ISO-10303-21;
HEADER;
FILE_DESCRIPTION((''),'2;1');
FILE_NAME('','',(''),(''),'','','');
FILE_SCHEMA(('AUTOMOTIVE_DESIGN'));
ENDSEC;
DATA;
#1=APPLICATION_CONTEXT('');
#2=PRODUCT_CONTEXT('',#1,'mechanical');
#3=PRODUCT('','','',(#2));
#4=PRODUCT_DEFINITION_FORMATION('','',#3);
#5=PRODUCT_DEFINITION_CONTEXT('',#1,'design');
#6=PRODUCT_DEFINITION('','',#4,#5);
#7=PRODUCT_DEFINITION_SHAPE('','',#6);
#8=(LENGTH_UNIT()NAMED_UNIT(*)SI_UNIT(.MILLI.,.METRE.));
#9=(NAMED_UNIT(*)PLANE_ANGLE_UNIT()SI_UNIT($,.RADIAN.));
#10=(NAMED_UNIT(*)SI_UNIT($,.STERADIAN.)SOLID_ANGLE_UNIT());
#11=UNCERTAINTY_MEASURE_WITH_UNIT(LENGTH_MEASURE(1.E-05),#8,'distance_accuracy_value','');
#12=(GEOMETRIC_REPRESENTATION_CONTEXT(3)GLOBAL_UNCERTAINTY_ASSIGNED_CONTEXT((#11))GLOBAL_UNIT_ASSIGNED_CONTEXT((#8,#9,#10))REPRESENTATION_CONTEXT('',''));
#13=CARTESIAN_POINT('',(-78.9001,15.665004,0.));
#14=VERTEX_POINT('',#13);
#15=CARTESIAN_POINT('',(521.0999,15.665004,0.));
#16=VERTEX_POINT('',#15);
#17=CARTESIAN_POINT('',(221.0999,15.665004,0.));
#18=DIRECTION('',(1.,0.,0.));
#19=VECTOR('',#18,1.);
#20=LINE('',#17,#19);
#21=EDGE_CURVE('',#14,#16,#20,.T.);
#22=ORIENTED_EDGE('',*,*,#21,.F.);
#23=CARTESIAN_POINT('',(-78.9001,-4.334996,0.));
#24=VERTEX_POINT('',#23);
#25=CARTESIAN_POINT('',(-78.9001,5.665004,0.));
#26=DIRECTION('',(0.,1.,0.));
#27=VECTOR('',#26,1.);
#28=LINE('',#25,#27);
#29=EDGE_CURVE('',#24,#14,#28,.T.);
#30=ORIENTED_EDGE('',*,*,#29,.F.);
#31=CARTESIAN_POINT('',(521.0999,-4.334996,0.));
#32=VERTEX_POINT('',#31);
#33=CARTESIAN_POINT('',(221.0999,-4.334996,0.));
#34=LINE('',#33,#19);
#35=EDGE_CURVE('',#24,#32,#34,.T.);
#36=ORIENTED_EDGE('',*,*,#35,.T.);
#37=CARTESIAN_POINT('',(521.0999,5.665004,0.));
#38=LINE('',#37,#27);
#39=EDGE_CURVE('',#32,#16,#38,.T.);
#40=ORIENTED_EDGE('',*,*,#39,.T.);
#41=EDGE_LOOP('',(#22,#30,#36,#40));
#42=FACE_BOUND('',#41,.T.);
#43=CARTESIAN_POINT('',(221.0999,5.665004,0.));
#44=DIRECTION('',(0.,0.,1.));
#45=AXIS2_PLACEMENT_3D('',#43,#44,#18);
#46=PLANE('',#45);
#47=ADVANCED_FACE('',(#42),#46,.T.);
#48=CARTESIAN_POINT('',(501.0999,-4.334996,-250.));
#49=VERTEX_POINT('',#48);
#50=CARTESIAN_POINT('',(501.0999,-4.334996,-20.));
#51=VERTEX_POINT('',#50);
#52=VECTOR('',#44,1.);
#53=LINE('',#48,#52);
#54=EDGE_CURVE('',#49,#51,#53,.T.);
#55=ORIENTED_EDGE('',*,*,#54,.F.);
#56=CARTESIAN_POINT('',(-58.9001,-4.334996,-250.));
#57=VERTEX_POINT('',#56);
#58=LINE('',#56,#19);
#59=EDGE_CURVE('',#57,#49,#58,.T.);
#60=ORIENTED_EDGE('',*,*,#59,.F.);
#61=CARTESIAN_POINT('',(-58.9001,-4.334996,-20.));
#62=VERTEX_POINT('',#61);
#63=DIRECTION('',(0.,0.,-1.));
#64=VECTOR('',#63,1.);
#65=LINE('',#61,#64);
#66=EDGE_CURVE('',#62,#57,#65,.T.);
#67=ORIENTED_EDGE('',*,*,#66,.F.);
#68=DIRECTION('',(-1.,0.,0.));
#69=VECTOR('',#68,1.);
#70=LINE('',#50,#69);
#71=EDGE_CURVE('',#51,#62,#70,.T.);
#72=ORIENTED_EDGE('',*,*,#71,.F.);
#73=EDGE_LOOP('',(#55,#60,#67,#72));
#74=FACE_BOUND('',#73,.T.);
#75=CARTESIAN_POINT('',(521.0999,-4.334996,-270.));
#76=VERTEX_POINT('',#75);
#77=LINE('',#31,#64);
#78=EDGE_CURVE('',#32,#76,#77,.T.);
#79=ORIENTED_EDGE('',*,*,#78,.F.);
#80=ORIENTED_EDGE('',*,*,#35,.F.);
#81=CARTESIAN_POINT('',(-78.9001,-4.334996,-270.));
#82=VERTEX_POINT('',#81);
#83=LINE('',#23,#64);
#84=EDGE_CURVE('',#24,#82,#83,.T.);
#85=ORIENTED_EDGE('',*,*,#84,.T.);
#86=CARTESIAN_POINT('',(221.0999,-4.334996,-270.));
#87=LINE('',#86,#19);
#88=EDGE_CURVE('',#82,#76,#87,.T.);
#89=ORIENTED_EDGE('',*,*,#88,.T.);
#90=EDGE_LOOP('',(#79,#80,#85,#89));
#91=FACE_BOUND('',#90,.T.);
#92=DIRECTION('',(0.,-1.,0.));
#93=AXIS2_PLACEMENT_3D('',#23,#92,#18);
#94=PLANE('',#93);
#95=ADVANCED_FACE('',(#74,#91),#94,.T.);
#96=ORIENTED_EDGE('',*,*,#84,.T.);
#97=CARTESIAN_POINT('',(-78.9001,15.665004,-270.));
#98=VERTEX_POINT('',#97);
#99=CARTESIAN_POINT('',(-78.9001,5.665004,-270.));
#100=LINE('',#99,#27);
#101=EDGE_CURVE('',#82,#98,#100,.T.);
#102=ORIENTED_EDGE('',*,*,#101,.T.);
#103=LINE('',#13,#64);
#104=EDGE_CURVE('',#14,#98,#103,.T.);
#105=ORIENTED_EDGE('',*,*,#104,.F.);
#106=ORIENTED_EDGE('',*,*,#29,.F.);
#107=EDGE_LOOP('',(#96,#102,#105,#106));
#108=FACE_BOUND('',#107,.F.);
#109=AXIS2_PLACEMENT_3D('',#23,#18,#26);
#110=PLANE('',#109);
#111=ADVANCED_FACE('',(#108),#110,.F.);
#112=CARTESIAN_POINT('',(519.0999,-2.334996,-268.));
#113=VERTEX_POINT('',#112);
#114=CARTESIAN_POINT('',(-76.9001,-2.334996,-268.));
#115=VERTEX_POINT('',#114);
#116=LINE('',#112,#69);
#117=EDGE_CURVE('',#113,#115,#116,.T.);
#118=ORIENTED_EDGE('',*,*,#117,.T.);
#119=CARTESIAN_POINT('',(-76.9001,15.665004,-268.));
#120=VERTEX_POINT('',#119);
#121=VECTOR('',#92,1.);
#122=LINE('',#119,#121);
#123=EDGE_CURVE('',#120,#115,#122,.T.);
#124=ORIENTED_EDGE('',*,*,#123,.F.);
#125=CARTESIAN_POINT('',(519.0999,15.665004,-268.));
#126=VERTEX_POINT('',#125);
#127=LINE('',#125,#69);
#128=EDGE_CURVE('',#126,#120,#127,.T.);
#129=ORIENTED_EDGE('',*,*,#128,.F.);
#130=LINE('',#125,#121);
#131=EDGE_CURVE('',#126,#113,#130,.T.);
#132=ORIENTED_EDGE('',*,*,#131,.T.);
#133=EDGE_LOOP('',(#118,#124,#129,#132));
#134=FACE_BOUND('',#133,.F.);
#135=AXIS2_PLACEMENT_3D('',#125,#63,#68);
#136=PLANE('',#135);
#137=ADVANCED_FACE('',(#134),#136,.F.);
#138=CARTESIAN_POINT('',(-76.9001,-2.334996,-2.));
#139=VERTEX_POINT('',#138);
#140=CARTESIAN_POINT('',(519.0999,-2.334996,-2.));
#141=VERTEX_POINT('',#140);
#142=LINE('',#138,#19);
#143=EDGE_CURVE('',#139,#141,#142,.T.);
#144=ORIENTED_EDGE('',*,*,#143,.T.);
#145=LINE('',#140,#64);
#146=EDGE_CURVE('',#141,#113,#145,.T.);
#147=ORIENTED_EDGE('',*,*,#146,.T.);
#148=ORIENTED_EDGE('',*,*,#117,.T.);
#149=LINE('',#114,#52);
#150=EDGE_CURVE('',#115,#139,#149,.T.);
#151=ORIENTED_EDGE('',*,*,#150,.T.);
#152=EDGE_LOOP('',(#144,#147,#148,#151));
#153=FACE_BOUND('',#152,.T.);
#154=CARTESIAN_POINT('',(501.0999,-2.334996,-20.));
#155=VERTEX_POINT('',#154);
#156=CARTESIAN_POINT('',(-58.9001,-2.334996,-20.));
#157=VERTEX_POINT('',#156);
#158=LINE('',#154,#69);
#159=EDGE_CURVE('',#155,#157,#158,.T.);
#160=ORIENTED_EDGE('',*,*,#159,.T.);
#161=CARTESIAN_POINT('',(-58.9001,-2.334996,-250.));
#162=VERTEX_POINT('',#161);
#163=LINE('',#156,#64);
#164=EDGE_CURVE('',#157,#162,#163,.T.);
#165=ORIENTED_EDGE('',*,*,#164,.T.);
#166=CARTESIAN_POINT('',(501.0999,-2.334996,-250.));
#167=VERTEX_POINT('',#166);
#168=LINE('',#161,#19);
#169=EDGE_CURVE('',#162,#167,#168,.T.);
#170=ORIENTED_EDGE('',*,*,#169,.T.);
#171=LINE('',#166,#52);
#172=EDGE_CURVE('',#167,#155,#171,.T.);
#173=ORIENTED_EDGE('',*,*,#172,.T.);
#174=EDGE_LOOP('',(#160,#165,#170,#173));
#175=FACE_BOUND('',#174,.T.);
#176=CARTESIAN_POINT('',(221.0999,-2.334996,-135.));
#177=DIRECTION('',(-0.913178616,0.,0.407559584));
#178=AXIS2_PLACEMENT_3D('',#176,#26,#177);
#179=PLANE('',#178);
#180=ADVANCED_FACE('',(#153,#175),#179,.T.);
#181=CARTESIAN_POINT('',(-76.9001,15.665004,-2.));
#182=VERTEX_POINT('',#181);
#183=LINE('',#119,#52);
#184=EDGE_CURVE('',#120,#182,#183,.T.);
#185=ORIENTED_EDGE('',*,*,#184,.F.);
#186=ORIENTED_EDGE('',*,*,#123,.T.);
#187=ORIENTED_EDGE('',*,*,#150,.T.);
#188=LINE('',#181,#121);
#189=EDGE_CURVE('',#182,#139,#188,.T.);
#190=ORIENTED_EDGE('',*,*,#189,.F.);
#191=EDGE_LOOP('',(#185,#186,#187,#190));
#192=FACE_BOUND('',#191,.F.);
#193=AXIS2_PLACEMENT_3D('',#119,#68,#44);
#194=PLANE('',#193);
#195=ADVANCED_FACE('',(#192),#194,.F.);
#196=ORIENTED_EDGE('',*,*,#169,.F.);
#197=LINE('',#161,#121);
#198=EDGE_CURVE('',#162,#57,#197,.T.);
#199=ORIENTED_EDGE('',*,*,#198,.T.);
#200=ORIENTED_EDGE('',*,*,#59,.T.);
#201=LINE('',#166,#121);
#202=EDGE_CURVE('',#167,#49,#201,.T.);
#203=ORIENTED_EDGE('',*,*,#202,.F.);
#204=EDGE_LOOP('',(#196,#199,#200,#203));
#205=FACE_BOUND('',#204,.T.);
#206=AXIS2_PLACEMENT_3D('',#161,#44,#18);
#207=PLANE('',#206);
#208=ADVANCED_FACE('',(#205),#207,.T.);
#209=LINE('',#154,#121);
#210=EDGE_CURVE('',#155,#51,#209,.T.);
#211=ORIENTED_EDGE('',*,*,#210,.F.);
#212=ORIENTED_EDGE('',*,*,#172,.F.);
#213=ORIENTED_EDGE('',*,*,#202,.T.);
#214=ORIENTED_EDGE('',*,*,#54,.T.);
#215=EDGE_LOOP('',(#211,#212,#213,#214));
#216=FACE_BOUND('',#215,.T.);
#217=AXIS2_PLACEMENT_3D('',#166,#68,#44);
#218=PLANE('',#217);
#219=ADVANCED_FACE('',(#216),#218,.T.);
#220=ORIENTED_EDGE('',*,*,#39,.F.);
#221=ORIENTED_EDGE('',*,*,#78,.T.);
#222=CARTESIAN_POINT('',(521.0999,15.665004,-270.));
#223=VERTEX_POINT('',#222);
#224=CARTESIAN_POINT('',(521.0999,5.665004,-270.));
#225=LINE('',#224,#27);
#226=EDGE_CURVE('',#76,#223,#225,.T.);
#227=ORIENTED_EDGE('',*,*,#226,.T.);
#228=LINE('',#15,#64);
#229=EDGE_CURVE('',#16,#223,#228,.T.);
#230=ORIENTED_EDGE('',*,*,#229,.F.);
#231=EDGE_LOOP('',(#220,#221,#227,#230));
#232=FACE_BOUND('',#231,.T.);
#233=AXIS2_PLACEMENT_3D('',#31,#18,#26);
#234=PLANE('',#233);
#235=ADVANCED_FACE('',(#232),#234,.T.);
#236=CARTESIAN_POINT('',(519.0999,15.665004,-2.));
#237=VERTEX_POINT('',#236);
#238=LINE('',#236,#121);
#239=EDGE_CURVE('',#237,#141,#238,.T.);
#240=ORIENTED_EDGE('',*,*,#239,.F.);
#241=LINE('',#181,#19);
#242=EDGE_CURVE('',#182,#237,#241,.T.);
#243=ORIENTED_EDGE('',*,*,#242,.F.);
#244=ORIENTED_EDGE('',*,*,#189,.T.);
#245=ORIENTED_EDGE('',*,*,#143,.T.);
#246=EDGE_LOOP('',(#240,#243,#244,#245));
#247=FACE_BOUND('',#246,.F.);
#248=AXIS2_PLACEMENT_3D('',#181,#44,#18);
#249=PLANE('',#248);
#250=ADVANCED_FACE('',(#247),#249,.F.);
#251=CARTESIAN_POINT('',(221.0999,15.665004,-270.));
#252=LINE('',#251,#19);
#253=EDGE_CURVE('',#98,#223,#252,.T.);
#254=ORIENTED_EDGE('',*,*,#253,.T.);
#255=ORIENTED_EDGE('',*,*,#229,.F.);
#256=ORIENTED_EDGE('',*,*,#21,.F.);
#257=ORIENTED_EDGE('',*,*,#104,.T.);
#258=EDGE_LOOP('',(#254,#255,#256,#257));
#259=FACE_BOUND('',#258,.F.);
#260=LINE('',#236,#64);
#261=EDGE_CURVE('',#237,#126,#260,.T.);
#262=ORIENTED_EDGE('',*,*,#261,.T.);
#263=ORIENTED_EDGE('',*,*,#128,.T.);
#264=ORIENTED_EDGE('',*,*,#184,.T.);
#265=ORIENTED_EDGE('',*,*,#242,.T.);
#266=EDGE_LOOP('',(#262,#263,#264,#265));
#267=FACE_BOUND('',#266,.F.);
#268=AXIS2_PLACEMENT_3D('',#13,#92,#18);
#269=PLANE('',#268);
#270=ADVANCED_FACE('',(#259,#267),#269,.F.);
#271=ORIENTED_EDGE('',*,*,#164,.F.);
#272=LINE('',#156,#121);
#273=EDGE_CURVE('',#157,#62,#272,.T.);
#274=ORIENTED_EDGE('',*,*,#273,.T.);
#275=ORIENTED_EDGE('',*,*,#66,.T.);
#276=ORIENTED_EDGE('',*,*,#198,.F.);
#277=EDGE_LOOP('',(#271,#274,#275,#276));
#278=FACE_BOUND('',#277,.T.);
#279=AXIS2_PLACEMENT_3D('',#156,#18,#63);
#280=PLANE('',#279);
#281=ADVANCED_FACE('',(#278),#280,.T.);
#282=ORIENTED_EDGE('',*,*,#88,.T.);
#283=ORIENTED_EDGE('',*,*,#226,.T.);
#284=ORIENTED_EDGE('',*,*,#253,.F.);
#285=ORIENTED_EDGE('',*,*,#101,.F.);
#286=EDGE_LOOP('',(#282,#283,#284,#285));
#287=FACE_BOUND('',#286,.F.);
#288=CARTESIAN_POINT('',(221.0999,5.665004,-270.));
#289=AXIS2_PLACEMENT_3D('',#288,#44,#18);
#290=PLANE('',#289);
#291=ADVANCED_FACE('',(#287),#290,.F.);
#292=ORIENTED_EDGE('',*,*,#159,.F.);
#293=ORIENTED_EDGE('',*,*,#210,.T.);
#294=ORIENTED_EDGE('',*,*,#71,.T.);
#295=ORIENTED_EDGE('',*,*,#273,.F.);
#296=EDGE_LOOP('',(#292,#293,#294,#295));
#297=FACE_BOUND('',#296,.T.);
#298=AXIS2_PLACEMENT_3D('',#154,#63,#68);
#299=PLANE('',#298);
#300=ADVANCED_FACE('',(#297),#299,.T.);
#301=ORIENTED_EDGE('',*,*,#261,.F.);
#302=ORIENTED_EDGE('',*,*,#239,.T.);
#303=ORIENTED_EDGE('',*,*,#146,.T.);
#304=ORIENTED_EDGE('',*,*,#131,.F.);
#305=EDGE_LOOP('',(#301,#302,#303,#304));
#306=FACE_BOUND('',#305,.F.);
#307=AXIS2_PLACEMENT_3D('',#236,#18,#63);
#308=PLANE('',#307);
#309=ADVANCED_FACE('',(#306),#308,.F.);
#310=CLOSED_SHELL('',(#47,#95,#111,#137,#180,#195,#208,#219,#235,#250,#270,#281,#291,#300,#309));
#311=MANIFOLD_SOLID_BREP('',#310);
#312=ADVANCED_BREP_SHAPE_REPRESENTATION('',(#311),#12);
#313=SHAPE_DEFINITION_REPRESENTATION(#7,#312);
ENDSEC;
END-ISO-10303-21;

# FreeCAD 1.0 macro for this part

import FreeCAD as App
import Part
import Sketcher
from FreeCAD import Vector

doc = App.newDocument("Part")
body = doc.addObject("PartDesign::Body", "Body")

sketch1 = body.newObject("Sketcher::SketchObject", "Sketch")
sketch1.AttachmentSupport = (doc.getObject("XY_Plane"), [""])
sketch1.MapMode = "FlatFace"
sketch1.addGeometry(Part.LineSegment(Vector(-78.9001, 15.665004, 0), Vector(-78.9001, -4.334996, 0)), False)
sketch1.addGeometry(Part.LineSegment(Vector(-78.9001, -4.334996, 0), Vector(521.0999, -4.334996, 0)), False)
sketch1.addGeometry(Part.LineSegment(Vector(521.0999, -4.334996, 0), Vector(521.0999, 15.665004, 0)), False)
sketch1.addGeometry(Part.LineSegment(Vector(521.0999, 15.665004, 0), Vector(-78.9001, 15.665004, 0)), False)
sketch1.addConstraint(Sketcher.Constraint("Coincident", 0, 2, 1, 1))
sketch1.addConstraint(Sketcher.Constraint("Coincident", 1, 2, 2, 1))
sketch1.addConstraint(Sketcher.Constraint("Coincident", 2, 2, 3, 1))
sketch1.addConstraint(Sketcher.Constraint("Coincident", 3, 2, 0, 1))
sketch1.addConstraint(Sketcher.Constraint("Vertical", 0))
sketch1.addConstraint(Sketcher.Constraint("Horizontal", 1))
sketch1.addConstraint(Sketcher.Constraint("Vertical", 2))
sketch1.addConstraint(Sketcher.Constraint("Horizontal", 3))
sketch1.addConstraint(Sketcher.Constraint("DistanceX", 1, 1, 1, 2, 600.0))
sketch1.addConstraint(Sketcher.Constraint("DistanceY", 0, 2, 0, 1, 20.0))
sketch1.addConstraint(Sketcher.Constraint("DistanceX", 0, 2, -1, 1, 78.9001))
sketch1.addConstraint(Sketcher.Constraint("DistanceY", 0, 2, -1, 1, 4.334996))
pad1 = body.newObject("PartDesign::Pad", "Pad")
pad1.Profile = sketch1
pad1.Length = 270
pad1.Reversed = True

sketch2 = body.newObject("Sketcher::SketchObject", "Sketch001")
sketch2.AttachmentSupport = (doc.getObject("XZ_Plane"), [""])
sketch2.MapMode = "FlatFace"
sketch2.AttachmentOffset = App.Placement(Vector(0, 0, -15.665004), App.Rotation())
sketch2.addGeometry(Part.LineSegment(Vector(519.0999, -268, 0), Vector(-76.9001, -268, 0)), False)
sketch2.addGeometry(Part.LineSegment(Vector(-76.9001, -268, 0), Vector(-76.9001, -2, 0)), False)
sketch2.addGeometry(Part.LineSegment(Vector(-76.9001, -2, 0), Vector(519.0999, -2, 0)), False)
sketch2.addGeometry(Part.LineSegment(Vector(519.0999, -2, 0), Vector(519.0999, -268, 0)), False)
sketch2.addConstraint(Sketcher.Constraint("Coincident", 0, 2, 1, 1))
sketch2.addConstraint(Sketcher.Constraint("Coincident", 1, 2, 2, 1))
sketch2.addConstraint(Sketcher.Constraint("Coincident", 2, 2, 3, 1))
sketch2.addConstraint(Sketcher.Constraint("Coincident", 3, 2, 0, 1))
sketch2.addConstraint(Sketcher.Constraint("Horizontal", 0))
sketch2.addConstraint(Sketcher.Constraint("Vertical", 1))
sketch2.addConstraint(Sketcher.Constraint("Horizontal", 2))
sketch2.addConstraint(Sketcher.Constraint("Vertical", 3))
sketch2.addConstraint(Sketcher.Constraint("DistanceX", 0, 2, 0, 1, 596.0))
sketch2.addConstraint(Sketcher.Constraint("DistanceY", 1, 1, 1, 2, 266.0))
sketch2.addConstraint(Sketcher.Constraint("DistanceY", 0, 2, -1, 1, 268.0))
sketch2.addConstraint(Sketcher.Constraint("DistanceX", 0, 2, -1, 1, 76.9001))
pocket1 = body.newObject("PartDesign::Pocket", "Pocket")
pocket1.Profile = sketch2
pocket1.Length = 18
pocket1.Reversed = True

sketch3 = body.newObject("Sketcher::SketchObject", "Sketch002")
sketch3.AttachmentSupport = (doc.getObject("XZ_Plane"), [""])
sketch3.MapMode = "FlatFace"
sketch3.AttachmentOffset = App.Placement(Vector(0, 0, 2.334996), App.Rotation())
sketch3.addGeometry(Part.LineSegment(Vector(501.0999, -250, 0), Vector(-58.9001, -250, 0)), False)
sketch3.addGeometry(Part.LineSegment(Vector(-58.9001, -250, 0), Vector(-58.9001, -20, 0)), False)
sketch3.addGeometry(Part.LineSegment(Vector(-58.9001, -20, 0), Vector(501.0999, -20, 0)), False)
sketch3.addGeometry(Part.LineSegment(Vector(501.0999, -20, 0), Vector(501.0999, -250, 0)), False)
sketch3.addConstraint(Sketcher.Constraint("Coincident", 0, 2, 1, 1))
sketch3.addConstraint(Sketcher.Constraint("Coincident", 1, 2, 2, 1))
sketch3.addConstraint(Sketcher.Constraint("Coincident", 2, 2, 3, 1))
sketch3.addConstraint(Sketcher.Constraint("Coincident", 3, 2, 0, 1))
sketch3.addConstraint(Sketcher.Constraint("Horizontal", 0))
sketch3.addConstraint(Sketcher.Constraint("Vertical", 1))
sketch3.addConstraint(Sketcher.Constraint("Horizontal", 2))
sketch3.addConstraint(Sketcher.Constraint("Vertical", 3))
sketch3.addConstraint(Sketcher.Constraint("DistanceX", 0, 2, 0, 1, 560.0))
sketch3.addConstraint(Sketcher.Constraint("DistanceY", 1, 1, 1, 2, 230.0))
sketch3.addConstraint(Sketcher.Constraint("DistanceY", 0, 2, -1, 1, 250.0))
sketch3.addConstraint(Sketcher.Constraint("DistanceX", 0, 2, -1, 1, 58.9001))
pocket2 = body.newObject("PartDesign::Pocket", "Pocket001")
pocket2.Profile = sketch3
pocket2.Length = 2
pocket2.Reversed = True

doc.recompute()
